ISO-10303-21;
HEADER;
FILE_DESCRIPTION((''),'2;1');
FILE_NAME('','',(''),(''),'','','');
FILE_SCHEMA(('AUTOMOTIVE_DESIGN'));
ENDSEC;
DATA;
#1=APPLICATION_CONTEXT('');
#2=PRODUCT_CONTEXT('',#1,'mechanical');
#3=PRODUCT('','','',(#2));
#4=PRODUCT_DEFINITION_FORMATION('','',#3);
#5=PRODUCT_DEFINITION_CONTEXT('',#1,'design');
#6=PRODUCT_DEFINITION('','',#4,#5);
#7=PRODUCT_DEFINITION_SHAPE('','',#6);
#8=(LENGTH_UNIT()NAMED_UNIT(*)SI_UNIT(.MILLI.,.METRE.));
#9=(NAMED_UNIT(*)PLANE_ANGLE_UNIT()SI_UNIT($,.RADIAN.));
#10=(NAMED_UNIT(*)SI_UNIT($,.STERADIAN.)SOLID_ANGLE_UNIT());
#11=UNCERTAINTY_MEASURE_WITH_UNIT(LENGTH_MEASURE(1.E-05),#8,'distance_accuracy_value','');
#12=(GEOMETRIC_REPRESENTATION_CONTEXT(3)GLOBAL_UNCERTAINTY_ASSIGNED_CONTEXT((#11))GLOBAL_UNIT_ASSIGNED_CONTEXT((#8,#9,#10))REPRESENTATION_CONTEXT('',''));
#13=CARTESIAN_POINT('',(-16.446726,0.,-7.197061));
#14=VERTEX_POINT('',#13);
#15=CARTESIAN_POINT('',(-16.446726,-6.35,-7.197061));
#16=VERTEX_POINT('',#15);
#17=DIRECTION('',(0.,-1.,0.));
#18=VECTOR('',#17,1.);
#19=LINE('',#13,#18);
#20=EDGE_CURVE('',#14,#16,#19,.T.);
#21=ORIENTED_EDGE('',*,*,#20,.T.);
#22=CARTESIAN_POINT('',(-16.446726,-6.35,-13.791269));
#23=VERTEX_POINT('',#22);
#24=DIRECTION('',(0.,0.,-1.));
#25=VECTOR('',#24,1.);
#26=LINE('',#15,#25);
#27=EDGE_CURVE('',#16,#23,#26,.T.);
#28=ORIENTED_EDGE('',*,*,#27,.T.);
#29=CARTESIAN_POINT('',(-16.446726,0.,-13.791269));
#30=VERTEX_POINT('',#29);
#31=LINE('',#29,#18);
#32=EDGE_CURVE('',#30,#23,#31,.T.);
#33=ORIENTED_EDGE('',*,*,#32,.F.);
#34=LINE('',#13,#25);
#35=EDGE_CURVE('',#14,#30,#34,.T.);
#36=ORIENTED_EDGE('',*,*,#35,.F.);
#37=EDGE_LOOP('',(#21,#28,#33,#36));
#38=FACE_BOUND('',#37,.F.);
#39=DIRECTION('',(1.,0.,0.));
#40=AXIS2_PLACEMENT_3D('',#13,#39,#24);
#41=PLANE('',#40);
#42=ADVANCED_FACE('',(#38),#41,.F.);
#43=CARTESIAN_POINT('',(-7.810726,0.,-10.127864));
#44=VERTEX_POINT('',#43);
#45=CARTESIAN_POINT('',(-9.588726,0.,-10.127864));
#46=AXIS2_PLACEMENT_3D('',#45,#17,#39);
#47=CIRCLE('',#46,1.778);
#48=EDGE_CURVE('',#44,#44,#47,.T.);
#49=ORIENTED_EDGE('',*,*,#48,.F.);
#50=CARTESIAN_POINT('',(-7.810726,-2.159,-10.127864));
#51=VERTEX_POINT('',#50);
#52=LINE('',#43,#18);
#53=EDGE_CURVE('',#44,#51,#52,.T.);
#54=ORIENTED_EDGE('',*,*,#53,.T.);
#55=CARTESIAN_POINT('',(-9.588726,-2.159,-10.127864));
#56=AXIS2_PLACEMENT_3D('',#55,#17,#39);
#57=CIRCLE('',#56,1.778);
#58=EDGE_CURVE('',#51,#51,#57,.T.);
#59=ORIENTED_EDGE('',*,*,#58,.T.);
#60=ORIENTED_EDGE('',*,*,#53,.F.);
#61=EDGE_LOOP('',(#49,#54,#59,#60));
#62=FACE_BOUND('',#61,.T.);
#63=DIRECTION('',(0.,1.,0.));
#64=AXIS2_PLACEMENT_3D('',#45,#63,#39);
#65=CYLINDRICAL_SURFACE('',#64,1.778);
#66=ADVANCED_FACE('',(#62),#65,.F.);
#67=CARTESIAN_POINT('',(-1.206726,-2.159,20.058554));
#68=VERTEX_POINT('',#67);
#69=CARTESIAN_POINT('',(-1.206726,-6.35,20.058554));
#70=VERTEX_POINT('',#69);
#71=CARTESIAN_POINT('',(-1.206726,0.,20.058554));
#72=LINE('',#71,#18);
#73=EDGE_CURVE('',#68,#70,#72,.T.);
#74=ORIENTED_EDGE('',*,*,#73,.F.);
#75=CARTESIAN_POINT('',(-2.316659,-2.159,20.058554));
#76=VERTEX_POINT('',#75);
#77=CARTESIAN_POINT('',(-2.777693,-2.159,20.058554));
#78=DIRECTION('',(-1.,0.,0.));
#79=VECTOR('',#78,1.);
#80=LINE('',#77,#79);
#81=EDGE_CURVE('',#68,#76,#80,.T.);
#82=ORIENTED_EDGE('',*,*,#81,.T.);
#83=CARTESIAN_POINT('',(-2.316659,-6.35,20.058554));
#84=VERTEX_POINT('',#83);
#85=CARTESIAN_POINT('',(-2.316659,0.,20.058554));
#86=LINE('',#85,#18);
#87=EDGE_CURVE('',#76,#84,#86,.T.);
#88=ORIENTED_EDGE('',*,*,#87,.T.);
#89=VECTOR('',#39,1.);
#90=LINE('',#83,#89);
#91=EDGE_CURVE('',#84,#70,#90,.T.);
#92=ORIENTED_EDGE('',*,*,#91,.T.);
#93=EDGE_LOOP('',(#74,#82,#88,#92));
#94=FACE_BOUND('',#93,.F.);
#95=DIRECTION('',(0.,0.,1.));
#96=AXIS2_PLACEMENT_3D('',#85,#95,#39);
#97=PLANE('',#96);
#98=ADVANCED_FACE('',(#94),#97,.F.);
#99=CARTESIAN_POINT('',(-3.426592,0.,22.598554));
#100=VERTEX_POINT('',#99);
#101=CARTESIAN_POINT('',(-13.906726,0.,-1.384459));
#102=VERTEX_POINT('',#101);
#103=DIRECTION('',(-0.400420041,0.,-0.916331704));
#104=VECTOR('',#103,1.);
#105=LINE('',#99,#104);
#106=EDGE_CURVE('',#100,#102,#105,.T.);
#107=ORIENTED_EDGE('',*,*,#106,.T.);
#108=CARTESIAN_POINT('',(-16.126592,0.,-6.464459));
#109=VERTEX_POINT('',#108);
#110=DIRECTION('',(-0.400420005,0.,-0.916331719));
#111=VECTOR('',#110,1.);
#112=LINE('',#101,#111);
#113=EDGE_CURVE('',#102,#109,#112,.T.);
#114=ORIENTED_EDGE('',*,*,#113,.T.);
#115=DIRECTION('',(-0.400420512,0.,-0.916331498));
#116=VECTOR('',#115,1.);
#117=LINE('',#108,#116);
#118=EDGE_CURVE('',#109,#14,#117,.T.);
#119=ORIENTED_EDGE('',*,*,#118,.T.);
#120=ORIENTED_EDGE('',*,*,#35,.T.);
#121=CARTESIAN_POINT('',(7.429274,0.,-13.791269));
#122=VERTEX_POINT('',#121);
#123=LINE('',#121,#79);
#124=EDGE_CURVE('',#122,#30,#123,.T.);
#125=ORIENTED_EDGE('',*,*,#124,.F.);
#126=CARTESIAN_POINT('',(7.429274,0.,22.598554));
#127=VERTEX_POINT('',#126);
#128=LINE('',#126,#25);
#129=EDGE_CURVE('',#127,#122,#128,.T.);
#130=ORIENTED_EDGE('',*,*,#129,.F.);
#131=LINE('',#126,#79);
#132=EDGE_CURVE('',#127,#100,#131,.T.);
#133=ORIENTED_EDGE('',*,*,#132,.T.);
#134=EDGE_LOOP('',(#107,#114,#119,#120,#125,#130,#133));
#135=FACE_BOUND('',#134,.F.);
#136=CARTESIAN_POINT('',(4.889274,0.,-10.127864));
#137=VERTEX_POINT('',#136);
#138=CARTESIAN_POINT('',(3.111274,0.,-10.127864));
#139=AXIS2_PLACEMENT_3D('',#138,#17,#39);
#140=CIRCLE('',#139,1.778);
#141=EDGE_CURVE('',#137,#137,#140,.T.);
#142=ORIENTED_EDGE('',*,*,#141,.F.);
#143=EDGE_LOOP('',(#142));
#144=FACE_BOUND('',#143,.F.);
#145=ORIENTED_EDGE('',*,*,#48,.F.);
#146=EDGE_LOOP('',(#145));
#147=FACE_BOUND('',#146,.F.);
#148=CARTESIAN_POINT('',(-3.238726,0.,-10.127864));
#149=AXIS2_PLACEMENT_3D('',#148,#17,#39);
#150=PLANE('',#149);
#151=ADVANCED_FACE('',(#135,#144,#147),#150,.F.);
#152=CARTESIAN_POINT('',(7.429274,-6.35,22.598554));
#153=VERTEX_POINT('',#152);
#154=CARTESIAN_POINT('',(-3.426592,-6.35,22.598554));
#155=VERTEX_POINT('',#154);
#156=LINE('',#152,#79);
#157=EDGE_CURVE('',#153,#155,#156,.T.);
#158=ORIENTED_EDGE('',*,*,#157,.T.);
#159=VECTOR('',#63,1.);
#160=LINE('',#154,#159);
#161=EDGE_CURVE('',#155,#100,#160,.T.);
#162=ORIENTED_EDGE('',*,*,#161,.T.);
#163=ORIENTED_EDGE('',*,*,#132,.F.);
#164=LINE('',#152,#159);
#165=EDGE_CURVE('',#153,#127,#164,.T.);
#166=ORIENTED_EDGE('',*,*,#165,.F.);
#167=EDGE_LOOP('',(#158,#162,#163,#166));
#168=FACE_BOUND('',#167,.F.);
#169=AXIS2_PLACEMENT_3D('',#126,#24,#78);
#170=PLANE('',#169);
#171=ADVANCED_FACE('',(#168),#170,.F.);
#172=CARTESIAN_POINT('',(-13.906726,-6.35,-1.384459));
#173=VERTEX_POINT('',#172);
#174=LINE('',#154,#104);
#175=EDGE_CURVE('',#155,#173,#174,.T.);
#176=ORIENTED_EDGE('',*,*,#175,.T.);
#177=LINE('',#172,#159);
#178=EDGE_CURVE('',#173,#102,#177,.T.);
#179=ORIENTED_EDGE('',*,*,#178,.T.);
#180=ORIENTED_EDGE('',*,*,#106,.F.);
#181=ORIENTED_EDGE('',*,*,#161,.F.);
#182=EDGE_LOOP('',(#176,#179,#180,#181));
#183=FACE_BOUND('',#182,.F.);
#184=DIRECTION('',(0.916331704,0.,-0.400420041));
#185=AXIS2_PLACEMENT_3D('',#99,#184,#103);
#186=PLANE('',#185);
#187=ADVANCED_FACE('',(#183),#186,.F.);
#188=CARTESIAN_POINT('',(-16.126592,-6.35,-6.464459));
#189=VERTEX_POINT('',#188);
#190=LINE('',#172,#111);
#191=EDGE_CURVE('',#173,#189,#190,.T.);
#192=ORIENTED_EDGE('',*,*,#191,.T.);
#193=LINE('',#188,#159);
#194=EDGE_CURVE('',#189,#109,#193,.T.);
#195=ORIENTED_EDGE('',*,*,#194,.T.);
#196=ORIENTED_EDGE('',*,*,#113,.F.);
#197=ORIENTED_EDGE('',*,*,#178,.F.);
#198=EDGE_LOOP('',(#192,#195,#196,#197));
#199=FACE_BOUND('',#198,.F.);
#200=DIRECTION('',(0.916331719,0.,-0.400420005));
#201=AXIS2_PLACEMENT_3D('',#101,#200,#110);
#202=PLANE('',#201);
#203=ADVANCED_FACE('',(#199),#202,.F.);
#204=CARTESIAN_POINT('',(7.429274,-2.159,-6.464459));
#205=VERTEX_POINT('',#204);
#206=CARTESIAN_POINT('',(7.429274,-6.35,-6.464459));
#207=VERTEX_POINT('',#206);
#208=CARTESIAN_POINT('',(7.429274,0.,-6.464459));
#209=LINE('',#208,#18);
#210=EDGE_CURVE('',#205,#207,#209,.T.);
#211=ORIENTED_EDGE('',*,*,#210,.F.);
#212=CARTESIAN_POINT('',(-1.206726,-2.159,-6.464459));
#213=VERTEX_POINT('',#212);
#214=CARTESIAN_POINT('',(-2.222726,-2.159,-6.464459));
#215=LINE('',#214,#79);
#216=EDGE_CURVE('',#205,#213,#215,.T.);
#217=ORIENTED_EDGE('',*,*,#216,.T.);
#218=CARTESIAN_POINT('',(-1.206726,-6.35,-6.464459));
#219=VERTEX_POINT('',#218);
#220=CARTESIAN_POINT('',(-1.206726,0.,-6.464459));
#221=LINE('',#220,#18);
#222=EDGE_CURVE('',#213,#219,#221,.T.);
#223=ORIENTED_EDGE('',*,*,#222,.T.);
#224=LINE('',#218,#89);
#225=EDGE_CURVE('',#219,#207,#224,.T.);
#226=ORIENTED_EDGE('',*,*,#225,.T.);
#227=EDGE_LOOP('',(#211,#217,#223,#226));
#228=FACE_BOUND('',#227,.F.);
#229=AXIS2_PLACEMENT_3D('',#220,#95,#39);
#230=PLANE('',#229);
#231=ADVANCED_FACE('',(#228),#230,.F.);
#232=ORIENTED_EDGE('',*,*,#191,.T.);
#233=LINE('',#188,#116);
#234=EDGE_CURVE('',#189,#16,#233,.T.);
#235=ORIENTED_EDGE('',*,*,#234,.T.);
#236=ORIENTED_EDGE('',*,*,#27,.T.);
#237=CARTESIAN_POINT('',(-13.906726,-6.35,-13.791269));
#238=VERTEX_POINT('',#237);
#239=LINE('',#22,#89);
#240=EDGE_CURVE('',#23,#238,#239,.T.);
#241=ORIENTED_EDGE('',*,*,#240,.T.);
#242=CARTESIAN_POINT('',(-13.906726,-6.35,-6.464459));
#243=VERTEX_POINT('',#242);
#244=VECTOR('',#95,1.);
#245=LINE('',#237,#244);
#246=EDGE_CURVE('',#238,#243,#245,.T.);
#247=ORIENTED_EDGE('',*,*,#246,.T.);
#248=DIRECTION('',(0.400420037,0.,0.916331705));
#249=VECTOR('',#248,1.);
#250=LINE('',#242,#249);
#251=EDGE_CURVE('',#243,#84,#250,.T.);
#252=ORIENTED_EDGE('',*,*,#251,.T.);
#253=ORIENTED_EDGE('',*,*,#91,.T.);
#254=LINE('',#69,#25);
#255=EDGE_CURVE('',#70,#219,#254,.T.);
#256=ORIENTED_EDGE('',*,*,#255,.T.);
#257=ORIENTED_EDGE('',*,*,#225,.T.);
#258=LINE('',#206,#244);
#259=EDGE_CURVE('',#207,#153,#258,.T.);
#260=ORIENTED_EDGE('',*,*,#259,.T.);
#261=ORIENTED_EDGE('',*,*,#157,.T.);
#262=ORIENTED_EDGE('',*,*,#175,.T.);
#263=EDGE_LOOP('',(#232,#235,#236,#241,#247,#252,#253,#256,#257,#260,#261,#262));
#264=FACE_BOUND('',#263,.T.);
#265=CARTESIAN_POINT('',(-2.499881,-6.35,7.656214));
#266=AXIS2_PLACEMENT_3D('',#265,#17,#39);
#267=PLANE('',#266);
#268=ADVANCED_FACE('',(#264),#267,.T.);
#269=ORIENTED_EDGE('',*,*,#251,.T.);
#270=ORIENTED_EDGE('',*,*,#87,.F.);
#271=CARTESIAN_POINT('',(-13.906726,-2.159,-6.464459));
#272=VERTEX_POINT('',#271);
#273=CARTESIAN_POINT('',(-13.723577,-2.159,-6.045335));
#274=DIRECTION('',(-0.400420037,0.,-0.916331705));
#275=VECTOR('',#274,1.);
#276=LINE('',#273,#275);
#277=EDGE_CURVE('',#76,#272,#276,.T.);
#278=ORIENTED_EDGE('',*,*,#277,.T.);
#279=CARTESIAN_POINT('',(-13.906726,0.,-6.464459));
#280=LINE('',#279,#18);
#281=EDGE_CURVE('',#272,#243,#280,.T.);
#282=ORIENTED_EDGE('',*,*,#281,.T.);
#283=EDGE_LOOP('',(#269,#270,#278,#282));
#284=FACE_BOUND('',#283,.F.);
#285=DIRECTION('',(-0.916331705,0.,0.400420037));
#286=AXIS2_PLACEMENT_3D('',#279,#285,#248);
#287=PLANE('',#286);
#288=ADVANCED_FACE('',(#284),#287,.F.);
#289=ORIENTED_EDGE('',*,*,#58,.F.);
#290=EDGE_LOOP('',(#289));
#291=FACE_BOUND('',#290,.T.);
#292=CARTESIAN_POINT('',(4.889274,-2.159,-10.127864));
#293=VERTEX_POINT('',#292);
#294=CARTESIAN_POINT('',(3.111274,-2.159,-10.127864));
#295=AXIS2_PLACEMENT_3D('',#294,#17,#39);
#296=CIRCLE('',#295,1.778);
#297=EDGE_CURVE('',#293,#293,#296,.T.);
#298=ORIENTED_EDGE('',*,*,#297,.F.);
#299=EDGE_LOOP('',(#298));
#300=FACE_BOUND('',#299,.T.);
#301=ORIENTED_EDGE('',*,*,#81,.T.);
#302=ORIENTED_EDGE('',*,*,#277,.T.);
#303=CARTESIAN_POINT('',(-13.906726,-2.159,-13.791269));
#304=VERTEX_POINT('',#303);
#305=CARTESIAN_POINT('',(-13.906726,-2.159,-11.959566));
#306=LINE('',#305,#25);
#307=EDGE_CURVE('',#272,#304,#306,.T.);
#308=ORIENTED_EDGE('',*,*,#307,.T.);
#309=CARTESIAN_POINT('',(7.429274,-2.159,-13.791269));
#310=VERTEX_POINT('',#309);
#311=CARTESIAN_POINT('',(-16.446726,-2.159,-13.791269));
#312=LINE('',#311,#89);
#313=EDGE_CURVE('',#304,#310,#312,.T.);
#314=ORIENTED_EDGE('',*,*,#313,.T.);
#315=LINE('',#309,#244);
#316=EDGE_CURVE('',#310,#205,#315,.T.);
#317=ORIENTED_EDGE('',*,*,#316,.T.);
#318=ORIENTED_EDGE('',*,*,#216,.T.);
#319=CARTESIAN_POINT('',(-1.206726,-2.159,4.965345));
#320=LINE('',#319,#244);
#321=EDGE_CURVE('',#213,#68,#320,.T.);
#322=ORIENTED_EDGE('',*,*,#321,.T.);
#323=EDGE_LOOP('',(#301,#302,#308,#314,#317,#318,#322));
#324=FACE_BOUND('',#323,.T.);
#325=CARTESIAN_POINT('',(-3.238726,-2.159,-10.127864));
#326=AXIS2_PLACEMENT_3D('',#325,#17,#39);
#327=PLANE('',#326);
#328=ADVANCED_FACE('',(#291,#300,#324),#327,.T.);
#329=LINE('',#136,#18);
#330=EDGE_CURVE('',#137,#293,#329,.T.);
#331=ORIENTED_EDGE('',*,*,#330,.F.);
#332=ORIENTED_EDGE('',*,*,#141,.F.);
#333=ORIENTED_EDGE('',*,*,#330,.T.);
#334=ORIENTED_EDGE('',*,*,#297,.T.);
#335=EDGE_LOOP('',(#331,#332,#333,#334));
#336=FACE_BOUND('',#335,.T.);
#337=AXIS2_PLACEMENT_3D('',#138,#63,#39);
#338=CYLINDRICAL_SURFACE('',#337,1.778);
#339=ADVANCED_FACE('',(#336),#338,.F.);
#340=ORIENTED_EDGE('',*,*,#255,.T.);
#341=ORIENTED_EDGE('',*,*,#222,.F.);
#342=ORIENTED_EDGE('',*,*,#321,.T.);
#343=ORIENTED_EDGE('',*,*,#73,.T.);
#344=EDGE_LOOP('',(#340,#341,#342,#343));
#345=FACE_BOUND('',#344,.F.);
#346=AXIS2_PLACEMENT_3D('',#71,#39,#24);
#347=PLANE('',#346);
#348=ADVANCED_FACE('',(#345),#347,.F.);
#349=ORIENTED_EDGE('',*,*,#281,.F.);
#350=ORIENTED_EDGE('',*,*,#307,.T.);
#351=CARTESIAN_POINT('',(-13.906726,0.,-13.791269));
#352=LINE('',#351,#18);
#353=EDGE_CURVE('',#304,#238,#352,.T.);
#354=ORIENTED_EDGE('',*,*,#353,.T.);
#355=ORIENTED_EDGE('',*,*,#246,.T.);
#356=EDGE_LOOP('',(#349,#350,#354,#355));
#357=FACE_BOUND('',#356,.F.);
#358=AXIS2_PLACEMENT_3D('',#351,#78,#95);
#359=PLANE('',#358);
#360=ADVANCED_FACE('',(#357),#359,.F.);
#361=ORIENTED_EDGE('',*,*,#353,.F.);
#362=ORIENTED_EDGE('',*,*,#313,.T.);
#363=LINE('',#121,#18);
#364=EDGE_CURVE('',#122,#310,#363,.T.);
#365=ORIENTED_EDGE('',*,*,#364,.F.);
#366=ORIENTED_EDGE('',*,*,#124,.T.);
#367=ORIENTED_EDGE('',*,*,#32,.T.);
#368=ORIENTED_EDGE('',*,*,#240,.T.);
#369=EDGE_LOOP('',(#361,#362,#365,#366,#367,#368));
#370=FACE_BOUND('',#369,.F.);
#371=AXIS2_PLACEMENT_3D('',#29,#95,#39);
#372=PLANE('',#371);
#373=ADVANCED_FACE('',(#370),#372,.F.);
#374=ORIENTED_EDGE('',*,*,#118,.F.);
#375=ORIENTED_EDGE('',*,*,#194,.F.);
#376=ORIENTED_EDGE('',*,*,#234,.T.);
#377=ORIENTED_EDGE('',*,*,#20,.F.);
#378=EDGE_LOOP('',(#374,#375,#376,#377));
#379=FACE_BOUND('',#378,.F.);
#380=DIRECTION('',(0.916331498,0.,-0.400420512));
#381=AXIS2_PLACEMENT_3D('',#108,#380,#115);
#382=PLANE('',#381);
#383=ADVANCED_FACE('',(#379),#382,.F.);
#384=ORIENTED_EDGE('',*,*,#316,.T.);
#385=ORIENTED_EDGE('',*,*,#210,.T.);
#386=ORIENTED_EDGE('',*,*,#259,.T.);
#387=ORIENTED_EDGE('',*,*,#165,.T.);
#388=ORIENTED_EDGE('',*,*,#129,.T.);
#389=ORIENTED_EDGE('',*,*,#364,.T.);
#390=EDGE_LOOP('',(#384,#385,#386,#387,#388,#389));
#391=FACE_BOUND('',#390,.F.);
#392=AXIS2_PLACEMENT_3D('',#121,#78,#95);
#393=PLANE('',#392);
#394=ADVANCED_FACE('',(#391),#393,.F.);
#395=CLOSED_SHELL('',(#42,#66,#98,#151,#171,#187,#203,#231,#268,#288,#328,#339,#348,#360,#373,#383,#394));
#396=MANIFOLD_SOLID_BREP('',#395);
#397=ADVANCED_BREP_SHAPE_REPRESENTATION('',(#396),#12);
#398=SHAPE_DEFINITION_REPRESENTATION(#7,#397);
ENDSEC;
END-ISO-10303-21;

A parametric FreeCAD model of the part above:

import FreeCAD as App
import Part
import Sketcher
from FreeCAD import Vector
Q = App.Units.Quantity

doc = App.newDocument("Part")
body = doc.addObject("PartDesign::Body", "Body")

# Sketch on XZ plane
sketch1 = doc.addObject("Sketcher::SketchObject", "Sketch")
body.addObject(sketch1)
sketch1.AttachmentSupport = (doc.XZ_Plane, [""])
sketch1.MapMode = "FlatFace"
sketch1.addGeometry(Part.LineSegment(Vector(-16.1, -6.5, 0), Vector(-16.4, -7.2, 0)), False)
sketch1.addGeometry(Part.LineSegment(Vector(-16.4, -7.2, 0), Vector(-16.4, -13.8, 0)), False)
sketch1.addGeometry(Part.LineSegment(Vector(-16.4, -13.8, 0), Vector(7.4, -13.8, 0)), False)
sketch1.addGeometry(Part.LineSegment(Vector(7.4, -13.8, 0), Vector(7.4, 22.6, 0)), False)
sketch1.addGeometry(Part.LineSegment(Vector(7.4, 22.6, 0), Vector(-3.4, 22.6, 0)), False)
sketch1.addGeometry(Part.LineSegment(Vector(-3.4, 22.6, 0), Vector(-13.9, -1.4, 0)), False)
sketch1.addGeometry(Part.LineSegment(Vector(-13.9, -1.4, 0), Vector(-16.1, -6.5, 0)), False)
sketch1.addGeometry(Part.Circle(Vector(-9.6, -10.1, 0), Vector(0, 0, 1), 1.8), False)
sketch1.addGeometry(Part.Circle(Vector(3.1, -10.1, 0), Vector(0, 0, 1), 1.8), False)
sketch1.addConstraint(Sketcher.Constraint("Coincident", 0, 2, 1, 1))
sketch1.addConstraint(Sketcher.Constraint("Coincident", 1, 2, 2, 1))
sketch1.addConstraint(Sketcher.Constraint("Coincident", 2, 2, 3, 1))
sketch1.addConstraint(Sketcher.Constraint("Coincident", 3, 2, 4, 1))
sketch1.addConstraint(Sketcher.Constraint("Coincident", 4, 2, 5, 1))
sketch1.addConstraint(Sketcher.Constraint("Coincident", 5, 2, 6, 1))
sketch1.addConstraint(Sketcher.Constraint("Coincident", 6, 2, 0, 1))
sketch1.addConstraint(Sketcher.Constraint("Vertical", 1))
sketch1.addConstraint(Sketcher.Constraint("Horizontal", 2))
sketch1.addConstraint(Sketcher.Constraint("Vertical", 3))
sketch1.addConstraint(Sketcher.Constraint("Horizontal", 4))
sketch1.addConstraint(Sketcher.Constraint("Equal", 7, 8))
sketch1.addConstraint(Sketcher.Constraint("Parallel", 0, 5))
sketch1.addConstraint(Sketcher.Constraint("Parallel", 5, 6))
sketch1.addConstraint(Sketcher.Constraint("Horizontal", 7, 3, 8, 3))
sketch1.addConstraint(Sketcher.Constraint("Diameter", 7, Q("0.14 in")))
sketch1.addConstraint(Sketcher.Constraint("DistanceX", 2, 1, 2, 2, Q("0.94 in")))
sketch1.addConstraint(Sketcher.Constraint("DistanceX", 7, 3, 8, 3, Q("0.5 in")))
sketch1.addConstraint(Sketcher.Constraint("DistanceX", 0, 2, 5, 2, Q("0.1 in")))
sketch1.addConstraint(Sketcher.Constraint("DistanceY", 6, 2, 5, 2, Q("0.2 in")))
sketch1.addConstraint(Sketcher.Constraint("DistanceX", 0, 2, 7, 3, Q("0.27 in")))
sketch1.addConstraint(Sketcher.Constraint("DistanceY", 0, 2, 6, 2, 0.732602))
sketch1.addConstraint(Sketcher.Constraint("Distance", 5, 26.172851))
sketch1.addConstraint(Sketcher.Constraint("DistanceY", 1, 2, 1, 1, 6.594208))
sketch1.addConstraint(Sketcher.Constraint("DistanceY", 0, 2, -1, 1, 7.197061))
sketch1.addConstraint(Sketcher.Constraint("DistanceX", 4, 2, -1, 1, 3.426592))
sketch1.addConstraint(Sketcher.Constraint("DistanceY", 8, 3, 3, 2, 32.726418))
pad1 = doc.addObject("PartDesign::Pad", "Pad")
body.addObject(pad1)
pad1.Profile = sketch1
pad1.Length = Q("0.085 in")

# Sketch on XZ plane
sketch2 = doc.addObject("Sketcher::SketchObject", "Sketch001")
body.addObject(sketch2)
sketch2.AttachmentSupport = (doc.XZ_Plane, [""])
sketch2.MapMode = "FlatFace"
sketch2.addGeometry(Part.LineSegment(Vector(-13.9, -1.4, 0), Vector(-16.1, -6.5, 0)), False)
sketch2.addGeometry(Part.LineSegment(Vector(-16.1, -6.5, 0), Vector(-16.4, -7.2, 0)), False)
sketch2.addGeometry(Part.LineSegment(Vector(-16.4, -7.2, 0), Vector(-16.4, -13.8, 0)), False)
sketch2.addGeometry(Part.LineSegment(Vector(-16.4, -13.8, 0), Vector(-13.9, -13.8, 0)), False)
sketch2.addGeometry(Part.LineSegment(Vector(-13.9, -13.8, 0), Vector(-13.9, -6.5, 0)), False)
sketch2.addGeometry(Part.LineSegment(Vector(-13.9, -6.5, 0), Vector(-2.3, 20.1, 0)), False)
sketch2.addGeometry(Part.LineSegment(Vector(-2.3, 20.1, 0), Vector(-1.2, 20.1, 0)), False)
sketch2.addGeometry(Part.LineSegment(Vector(-1.2, 20.1, 0), Vector(-1.2, -6.5, 0)), False)
sketch2.addGeometry(Part.LineSegment(Vector(-1.2, -6.5, 0), Vector(7.4, -6.5, 0)), False)
sketch2.addGeometry(Part.LineSegment(Vector(7.4, -6.5, 0), Vector(7.4, 22.6, 0)), False)
sketch2.addGeometry(Part.LineSegment(Vector(7.4, 22.6, 0), Vector(-3.4, 22.6, 0)), False)
sketch2.addGeometry(Part.LineSegment(Vector(-3.4, 22.6, 0), Vector(-13.9, -1.4, 0)), False)
sketch2.addConstraint(Sketcher.Constraint("Coincident", 0, 2, 1, 1))
sketch2.addConstraint(Sketcher.Constraint("Coincident", 1, 2, 2, 1))
sketch2.addConstraint(Sketcher.Constraint("Coincident", 2, 2, 3, 1))
sketch2.addConstraint(Sketcher.Constraint("Coincident", 3, 2, 4, 1))
sketch2.addConstraint(Sketcher.Constraint("Coincident", 4, 2, 5, 1))
sketch2.addConstraint(Sketcher.Constraint("Coincident", 5, 2, 6, 1))
sketch2.addConstraint(Sketcher.Constraint("Coincident", 6, 2, 7, 1))
sketch2.addConstraint(Sketcher.Constraint("Coincident", 7, 2, 8, 1))
sketch2.addConstraint(Sketcher.Constraint("Coincident", 8, 2, 9, 1))
sketch2.addConstraint(Sketcher.Constraint("Coincident", 9, 2, 10, 1))
sketch2.addConstraint(Sketcher.Constraint("Coincident", 10, 2, 11, 1))
sketch2.addConstraint(Sketcher.Constraint("Coincident", 11, 2, 0, 1))
sketch2.addConstraint(Sketcher.Constraint("Vertical", 2))
sketch2.addConstraint(Sketcher.Constraint("Horizontal", 3))
sketch2.addConstraint(Sketcher.Constraint("Vertical", 4))
sketch2.addConstraint(Sketcher.Constraint("Horizontal", 6))
sketch2.addConstraint(Sketcher.Constraint("Vertical", 7))
sketch2.addConstraint(Sketcher.Constraint("Horizontal", 8))
sketch2.addConstraint(Sketcher.Constraint("Vertical", 9))
sketch2.addConstraint(Sketcher.Constraint("Horizontal", 10))
sketch2.addConstraint(Sketcher.Constraint("Parallel", 0, 1))
sketch2.addConstraint(Sketcher.Constraint("Parallel", 1, 5))
sketch2.addConstraint(Sketcher.Constraint("Parallel", 5, 11))
sketch2.addConstraint(Sketcher.Constraint("Horizontal", 0, 2, 4, 2))
sketch2.addConstraint(Sketcher.Constraint("Horizontal", 4, 2, 7, 2))
sketch2.addConstraint(Sketcher.Constraint("Vertical", 4, 2, 11, 2))
sketch2.addConstraint(Sketcher.Constraint("DistanceX", 3, 1, 3, 2, Q("0.1 in")))
sketch2.addConstraint(Sketcher.Constraint("DistanceX", 8, 1, 8, 2, Q("0.34 in")))
sketch2.addConstraint(Sketcher.Constraint("DistanceX", 4, 2, 6, 2, Q("0.5 in")))
sketch2.addConstraint(Sketcher.Constraint("DistanceY", 6, 2, 9, 2, Q("0.1 in")))
sketch2.addConstraint(Sketcher.Constraint("DistanceY", 4, 2, 11, 2, Q("0.2 in")))
sketch2.addConstraint(Sketcher.Constraint("DistanceY", 4, 1, 4, 2, 7.32681))
sketch2.addConstraint(Sketcher.Constraint("DistanceY", 1, 2, 0, 2, 0.732602))
sketch2.addConstraint(Sketcher.Constraint("Distance", 11, 26.172851))
sketch2.addConstraint(Sketcher.Constraint("DistanceX", 0, 2, -1, 1, 16.126592))
sketch2.addConstraint(Sketcher.Constraint("DistanceY", 0, 2, -1, 1, 6.464459))
pad2 = doc.addObject("PartDesign::Pad", "Pad001")
body.addObject(pad2)
pad2.Profile = sketch2
pad2.Length = Q("0.25 in")

doc.recompute()
